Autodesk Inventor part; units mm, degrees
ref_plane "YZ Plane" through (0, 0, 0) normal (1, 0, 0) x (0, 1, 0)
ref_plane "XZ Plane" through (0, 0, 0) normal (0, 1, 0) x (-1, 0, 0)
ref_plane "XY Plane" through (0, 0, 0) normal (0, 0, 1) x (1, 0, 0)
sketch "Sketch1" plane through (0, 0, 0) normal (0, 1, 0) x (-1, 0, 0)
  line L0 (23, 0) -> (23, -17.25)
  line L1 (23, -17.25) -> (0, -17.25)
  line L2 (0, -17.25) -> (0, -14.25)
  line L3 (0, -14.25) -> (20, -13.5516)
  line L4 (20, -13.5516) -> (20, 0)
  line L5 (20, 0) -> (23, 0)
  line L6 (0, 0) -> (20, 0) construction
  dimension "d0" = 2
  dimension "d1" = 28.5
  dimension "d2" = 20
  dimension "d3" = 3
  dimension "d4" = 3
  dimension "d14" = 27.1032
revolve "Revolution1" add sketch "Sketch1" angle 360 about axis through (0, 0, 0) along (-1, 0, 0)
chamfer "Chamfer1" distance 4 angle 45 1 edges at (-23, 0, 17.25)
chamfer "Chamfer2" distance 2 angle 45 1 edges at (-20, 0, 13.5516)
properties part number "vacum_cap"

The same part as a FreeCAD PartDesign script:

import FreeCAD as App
import Part
import Sketcher

V = App.Vector
Q = App.Units.Quantity


def edges_at(feature, points):
    """Names of the edges that pass closest to the given points."""
    edges = feature.Shape.Edges
    near = lambda p: min(range(len(edges)), key=lambda i: edges[i].distToShape(Part.Vertex(*p))[0])
    return sorted({f"Edge{near(p) + 1}" for p in points})


def add_polygon(sketch, points):
    """Adds a closed chain of lines whose ends are joined by coincident constraints."""
    first, n = sketch.GeometryCount, len(points)
    for a, b in zip(points, points[1:] + points[:1]):
        sketch.addGeometry(Part.LineSegment(App.Vector(*a, 0), App.Vector(*b, 0)), False)
    for i in range(n):
        sketch.addConstraint(Sketcher.Constraint("Coincident", first + i, 2, first + (i + 1) % n, 1))

doc = App.newDocument("Part")
body = doc.addObject("PartDesign::Body", "Body")

# Sketch on XZ plane
sketch1 = doc.addObject("Sketcher::SketchObject", "Sketch")
body.addObject(sketch1)
sketch1.AttachmentSupport = (doc.XZ_Plane, [""])
sketch1.MapMode = "FlatFace"
add_polygon(sketch1, [(-23, -17.2), (-23, 0), (-20, 0), (-20, -13.6), (0, -14.2), (0, -17.2)])  # lines 0-5
sketch1.addConstraint(Sketcher.Constraint("Vertical", 0))
sketch1.addConstraint(Sketcher.Constraint("Horizontal", 1))
sketch1.addConstraint(Sketcher.Constraint("Vertical", 2))
sketch1.addConstraint(Sketcher.Constraint("Vertical", 4))
sketch1.addConstraint(Sketcher.Constraint("Horizontal", 5))
sketch1.addConstraint(Sketcher.Constraint("PointOnObject", 0, 2, -1))
sketch1.addConstraint(Sketcher.Constraint("PointOnObject", 3, 2, -2))
sketch1.addConstraint(Sketcher.Constraint("Equal", 1, 4))
sketch1.addConstraint(Sketcher.Constraint("DistanceX", 1, 1, 1, 2, Q("3 mm")))
sketch1.addConstraint(Sketcher.Constraint("Angle", 3, Q("-2 deg")))
sketch1.addConstraint(Sketcher.Constraint("DistanceX", 1, 2, -1, 1, Q("20 mm")))
sketch1.addConstraint(Sketcher.Constraint("DistanceY", 0, 1, 0, 2, Q("17.25 mm")))
revolution = doc.addObject("PartDesign::Revolution", "Revolution")
body.addObject(revolution)
revolution.Profile = sketch1
revolution.ReferenceAxis = (sketch1, ["H_Axis"])
revolution.Angle = 360
doc.recompute()

chamfer = doc.addObject("PartDesign::Chamfer", "Chamfer")
body.addObject(chamfer)
chamfer.Base = (revolution, edges_at(revolution, [(-23, 0, 17.25)]))
chamfer.Size = 4
doc.recompute()

chamfer2 = doc.addObject("PartDesign::Chamfer", "Chamfer001")
body.addObject(chamfer2)
chamfer2.Base = (chamfer, edges_at(chamfer, [(-20, 0, 13.552)]))
chamfer2.Size = 2

doc.recompute()
